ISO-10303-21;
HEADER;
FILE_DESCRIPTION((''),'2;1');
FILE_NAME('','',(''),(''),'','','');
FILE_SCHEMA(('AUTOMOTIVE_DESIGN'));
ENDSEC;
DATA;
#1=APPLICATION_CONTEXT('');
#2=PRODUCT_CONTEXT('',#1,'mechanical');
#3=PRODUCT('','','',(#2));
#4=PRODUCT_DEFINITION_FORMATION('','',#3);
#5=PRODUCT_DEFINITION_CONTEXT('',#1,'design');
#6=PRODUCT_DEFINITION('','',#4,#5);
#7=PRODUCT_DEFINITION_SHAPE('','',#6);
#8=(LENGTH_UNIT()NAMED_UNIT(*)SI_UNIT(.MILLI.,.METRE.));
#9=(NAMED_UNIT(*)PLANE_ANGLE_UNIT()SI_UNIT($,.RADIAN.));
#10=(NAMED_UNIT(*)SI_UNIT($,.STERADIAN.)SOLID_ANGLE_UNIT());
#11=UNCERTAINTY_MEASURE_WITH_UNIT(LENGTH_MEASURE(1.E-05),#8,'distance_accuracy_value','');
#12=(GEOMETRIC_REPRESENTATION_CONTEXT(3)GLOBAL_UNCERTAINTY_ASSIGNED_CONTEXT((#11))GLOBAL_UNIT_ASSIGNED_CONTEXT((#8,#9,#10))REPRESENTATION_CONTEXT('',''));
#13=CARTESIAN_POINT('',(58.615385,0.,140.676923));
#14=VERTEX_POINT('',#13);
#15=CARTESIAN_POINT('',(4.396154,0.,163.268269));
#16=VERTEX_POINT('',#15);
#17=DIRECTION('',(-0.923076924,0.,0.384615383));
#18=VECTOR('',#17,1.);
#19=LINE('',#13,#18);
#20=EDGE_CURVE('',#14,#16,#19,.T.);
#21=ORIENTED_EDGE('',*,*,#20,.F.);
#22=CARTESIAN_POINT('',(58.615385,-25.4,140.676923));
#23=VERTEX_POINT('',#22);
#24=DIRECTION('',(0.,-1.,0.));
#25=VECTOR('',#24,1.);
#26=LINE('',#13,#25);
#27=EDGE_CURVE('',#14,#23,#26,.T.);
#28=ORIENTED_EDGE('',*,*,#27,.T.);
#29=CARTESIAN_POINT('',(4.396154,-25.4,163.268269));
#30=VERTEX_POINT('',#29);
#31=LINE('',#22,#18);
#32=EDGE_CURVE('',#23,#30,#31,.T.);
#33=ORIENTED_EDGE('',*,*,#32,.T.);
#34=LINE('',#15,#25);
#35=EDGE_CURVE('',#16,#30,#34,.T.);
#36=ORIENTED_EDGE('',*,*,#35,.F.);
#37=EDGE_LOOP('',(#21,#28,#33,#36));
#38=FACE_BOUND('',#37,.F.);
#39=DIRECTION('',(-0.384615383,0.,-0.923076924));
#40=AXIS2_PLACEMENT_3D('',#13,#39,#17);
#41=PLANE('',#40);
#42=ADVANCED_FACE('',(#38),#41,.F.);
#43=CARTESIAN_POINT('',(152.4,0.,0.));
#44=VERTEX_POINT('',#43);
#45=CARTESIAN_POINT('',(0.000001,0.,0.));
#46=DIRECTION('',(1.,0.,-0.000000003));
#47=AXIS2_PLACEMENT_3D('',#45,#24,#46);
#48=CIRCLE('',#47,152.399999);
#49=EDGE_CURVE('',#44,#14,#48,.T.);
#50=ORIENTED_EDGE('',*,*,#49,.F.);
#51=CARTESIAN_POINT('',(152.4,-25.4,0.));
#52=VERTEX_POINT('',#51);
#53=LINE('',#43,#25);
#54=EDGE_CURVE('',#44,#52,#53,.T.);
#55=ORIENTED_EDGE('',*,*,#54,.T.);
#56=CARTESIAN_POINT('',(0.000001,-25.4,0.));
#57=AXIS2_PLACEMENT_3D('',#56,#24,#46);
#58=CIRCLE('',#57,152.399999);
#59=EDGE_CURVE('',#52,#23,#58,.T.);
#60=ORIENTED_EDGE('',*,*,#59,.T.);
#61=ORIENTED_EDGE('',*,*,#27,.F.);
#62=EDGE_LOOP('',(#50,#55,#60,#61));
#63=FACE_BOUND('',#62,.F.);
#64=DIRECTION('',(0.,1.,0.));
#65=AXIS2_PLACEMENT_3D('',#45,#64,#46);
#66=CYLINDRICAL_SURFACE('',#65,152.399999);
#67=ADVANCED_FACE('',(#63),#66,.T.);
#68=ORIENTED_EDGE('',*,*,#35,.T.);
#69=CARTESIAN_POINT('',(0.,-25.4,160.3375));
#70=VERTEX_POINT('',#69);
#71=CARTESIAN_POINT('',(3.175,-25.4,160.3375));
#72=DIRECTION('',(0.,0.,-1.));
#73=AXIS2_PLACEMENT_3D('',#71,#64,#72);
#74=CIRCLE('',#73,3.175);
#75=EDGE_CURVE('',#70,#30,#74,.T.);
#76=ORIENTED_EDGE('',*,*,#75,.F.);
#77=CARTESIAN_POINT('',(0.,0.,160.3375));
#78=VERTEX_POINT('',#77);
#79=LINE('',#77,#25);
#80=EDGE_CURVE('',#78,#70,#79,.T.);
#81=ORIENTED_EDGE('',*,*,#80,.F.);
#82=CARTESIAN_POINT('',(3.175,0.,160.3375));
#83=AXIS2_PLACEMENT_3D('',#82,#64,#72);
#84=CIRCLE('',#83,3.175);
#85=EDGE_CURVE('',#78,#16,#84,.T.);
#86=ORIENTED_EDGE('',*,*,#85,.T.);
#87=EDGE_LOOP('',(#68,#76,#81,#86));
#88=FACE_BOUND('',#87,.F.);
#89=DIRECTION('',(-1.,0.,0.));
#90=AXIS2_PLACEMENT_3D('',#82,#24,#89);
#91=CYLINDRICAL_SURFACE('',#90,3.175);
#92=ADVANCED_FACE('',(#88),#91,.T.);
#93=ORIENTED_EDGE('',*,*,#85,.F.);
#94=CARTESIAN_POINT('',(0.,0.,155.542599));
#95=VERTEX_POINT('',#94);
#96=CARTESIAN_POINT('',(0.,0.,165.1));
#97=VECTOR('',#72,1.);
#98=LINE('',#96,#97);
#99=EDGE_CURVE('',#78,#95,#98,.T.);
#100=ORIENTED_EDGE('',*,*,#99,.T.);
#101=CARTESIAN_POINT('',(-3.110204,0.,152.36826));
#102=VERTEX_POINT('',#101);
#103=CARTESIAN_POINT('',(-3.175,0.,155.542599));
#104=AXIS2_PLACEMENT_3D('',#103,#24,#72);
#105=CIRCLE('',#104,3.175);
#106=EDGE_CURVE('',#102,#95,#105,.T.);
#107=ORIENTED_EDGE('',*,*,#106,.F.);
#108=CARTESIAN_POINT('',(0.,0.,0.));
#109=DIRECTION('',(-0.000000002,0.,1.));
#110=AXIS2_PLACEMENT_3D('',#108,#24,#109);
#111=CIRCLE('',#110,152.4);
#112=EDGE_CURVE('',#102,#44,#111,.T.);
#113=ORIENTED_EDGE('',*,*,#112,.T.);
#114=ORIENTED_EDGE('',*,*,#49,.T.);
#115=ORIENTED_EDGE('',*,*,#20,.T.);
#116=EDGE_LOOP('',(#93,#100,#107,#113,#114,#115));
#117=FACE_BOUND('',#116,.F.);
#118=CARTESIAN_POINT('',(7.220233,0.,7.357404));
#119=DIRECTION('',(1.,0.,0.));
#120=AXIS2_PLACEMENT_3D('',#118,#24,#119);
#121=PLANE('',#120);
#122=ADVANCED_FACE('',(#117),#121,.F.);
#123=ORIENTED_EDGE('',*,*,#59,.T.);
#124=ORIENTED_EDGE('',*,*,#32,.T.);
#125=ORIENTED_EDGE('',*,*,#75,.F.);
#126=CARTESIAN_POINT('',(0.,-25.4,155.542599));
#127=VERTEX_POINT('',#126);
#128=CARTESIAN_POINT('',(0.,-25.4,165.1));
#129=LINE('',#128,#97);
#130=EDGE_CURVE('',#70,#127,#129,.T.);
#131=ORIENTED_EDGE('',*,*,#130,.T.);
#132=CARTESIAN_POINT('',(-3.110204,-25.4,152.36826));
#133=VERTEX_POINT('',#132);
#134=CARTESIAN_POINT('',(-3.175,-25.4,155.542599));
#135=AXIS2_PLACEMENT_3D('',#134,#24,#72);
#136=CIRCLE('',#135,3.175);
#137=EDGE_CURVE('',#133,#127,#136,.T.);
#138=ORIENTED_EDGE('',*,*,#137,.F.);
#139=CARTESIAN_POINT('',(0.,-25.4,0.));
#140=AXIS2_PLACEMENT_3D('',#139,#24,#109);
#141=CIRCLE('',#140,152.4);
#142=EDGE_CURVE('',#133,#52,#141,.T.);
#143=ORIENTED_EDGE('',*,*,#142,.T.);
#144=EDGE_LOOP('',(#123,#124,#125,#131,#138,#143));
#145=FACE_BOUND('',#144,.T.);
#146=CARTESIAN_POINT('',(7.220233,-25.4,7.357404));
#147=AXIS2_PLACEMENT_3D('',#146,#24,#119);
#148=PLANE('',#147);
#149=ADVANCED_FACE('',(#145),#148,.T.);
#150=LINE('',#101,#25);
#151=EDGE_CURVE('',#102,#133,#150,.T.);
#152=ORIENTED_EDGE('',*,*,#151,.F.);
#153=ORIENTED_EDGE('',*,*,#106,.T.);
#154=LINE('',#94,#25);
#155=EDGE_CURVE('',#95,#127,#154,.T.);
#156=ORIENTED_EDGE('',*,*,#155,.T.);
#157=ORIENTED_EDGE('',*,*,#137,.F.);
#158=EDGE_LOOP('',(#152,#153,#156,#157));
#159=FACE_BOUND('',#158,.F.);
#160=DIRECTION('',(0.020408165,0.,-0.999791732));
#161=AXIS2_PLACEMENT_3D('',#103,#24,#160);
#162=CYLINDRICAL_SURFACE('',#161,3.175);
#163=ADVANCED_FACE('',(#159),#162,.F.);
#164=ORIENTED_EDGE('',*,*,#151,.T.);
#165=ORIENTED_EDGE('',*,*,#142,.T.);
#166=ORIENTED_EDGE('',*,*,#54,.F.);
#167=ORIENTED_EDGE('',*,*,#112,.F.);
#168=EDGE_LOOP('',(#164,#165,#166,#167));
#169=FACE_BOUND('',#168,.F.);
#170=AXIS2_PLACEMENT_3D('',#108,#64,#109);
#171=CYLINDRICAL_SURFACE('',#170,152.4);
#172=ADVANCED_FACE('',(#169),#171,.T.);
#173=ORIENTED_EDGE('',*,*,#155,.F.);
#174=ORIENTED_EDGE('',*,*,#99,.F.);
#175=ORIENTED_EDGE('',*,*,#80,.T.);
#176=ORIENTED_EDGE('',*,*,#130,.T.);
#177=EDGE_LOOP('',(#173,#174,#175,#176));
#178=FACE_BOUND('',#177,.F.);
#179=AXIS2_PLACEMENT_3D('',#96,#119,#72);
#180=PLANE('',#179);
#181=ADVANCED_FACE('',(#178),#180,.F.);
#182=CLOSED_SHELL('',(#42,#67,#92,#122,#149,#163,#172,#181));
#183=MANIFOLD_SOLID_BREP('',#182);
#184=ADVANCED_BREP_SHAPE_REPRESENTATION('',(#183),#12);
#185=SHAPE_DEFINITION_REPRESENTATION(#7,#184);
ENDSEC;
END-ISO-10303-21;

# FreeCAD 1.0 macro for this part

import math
import FreeCAD as App
import Part
import Sketcher
from FreeCAD import Vector
Q = App.Units.Quantity


def edges_at(feature, points):
    """Names of the edges that pass closest to the given points."""
    edges = feature.Shape.Edges
    near = lambda p: min(range(len(edges)), key=lambda i: edges[i].distToShape(Part.Vertex(*p))[0])
    return sorted({f"Edge{near(p) + 1}" for p in points})

doc = App.newDocument("Part")
body = doc.addObject("PartDesign::Body", "Body")

sketch1 = body.newObject("Sketcher::SketchObject", "Sketch")
sketch1.AttachmentSupport = (doc.getObject("XZ_Plane"), [""])
sketch1.MapMode = "FlatFace"
sketch1.addGeometry(Part.ArcOfCircle(Part.Circle(Vector(0, 0, 0), Vector(0, 0, 1), 152), math.radians(90), math.radians(360)), False)
sketch1.addGeometry(Part.ArcOfCircle(Part.Circle(Vector(0, 0, 0), Vector(0, 0, 1), 152), math.radians(0), math.radians(67)), False)
sketch1.addGeometry(Part.LineSegment(Vector(59, 141, 0), Vector(0, 165, 0)), False)
sketch1.addGeometry(Part.LineSegment(Vector(0, 165, 0), Vector(0, 152, 0)), False)
sketch1.addConstraint(Sketcher.Constraint("Tangent", 0, 2, 1, 1))
sketch1.addConstraint(Sketcher.Constraint("Tangent", 1, 2, 2, 1))
sketch1.addConstraint(Sketcher.Constraint("Coincident", 2, 2, 3, 1))
sketch1.addConstraint(Sketcher.Constraint("Coincident", 3, 2, 0, 1))
sketch1.addConstraint(Sketcher.Constraint("Vertical", 3))
sketch1.addConstraint(Sketcher.Constraint("Coincident", 0, 3, -1, 1))
sketch1.addConstraint(Sketcher.Constraint("Equal", 0, 1))
sketch1.addConstraint(Sketcher.Constraint("PointOnObject", 0, 2, -1))
sketch1.addConstraint(Sketcher.Constraint("PointOnObject", 2, 2, -2))
sketch1.addConstraint(Sketcher.Constraint("Radius", 0, Q("6 in")))
sketch1.addConstraint(Sketcher.Constraint("DistanceY", 3, 2, 3, 1, Q("0.5 in")))
pad1 = body.newObject("PartDesign::Pad", "Pad")
pad1.Profile = sketch1
pad1.Length = Q("1 in")
doc.recompute()

fillet = body.newObject("PartDesign::Fillet", "Fillet")
fillet.Base = (pad1, edges_at(pad1, [(0, -12.7, 152.4)]))
fillet.Radius = Q("0.125 in")
doc.recompute()

fillet2 = body.newObject("PartDesign::Fillet", "Fillet001")
fillet2.Base = (fillet, edges_at(fillet, [(0, -12.7, 165.1)]))
fillet2.Radius = Q("0.125 in")

doc.recompute()
